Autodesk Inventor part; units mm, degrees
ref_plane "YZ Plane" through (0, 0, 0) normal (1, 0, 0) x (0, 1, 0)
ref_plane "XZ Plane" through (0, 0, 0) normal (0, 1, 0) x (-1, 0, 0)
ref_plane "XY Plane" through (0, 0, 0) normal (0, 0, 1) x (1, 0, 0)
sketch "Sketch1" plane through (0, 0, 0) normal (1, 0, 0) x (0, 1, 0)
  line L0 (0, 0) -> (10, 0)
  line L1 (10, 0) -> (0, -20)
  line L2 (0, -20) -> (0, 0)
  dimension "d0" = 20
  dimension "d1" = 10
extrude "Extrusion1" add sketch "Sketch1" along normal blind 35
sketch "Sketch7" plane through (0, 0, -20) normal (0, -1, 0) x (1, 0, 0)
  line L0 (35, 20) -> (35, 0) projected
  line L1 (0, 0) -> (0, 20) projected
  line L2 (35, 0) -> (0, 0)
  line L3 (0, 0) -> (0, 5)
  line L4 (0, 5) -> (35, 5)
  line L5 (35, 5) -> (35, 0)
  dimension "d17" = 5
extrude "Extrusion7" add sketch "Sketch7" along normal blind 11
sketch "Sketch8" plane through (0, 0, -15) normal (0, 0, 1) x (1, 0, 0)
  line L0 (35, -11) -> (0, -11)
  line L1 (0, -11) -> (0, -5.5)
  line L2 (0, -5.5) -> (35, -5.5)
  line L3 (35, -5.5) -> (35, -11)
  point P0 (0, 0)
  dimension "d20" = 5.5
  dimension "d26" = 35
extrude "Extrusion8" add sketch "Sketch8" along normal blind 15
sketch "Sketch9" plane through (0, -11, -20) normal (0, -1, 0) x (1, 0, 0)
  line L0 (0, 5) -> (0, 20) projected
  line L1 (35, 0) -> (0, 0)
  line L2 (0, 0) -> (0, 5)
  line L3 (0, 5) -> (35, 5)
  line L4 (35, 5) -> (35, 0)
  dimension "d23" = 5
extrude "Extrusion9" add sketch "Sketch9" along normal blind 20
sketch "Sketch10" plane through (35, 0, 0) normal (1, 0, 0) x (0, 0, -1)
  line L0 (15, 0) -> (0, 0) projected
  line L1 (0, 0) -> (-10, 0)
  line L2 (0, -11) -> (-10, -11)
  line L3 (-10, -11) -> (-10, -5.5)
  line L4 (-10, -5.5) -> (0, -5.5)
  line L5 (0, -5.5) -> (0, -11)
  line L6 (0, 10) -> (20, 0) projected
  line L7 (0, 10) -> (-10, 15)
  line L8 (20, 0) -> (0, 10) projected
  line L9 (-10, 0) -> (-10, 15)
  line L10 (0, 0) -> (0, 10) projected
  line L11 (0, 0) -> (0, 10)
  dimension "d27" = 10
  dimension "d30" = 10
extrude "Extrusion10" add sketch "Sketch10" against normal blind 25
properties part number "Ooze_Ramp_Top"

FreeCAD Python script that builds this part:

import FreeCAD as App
import Part
import Sketcher

V = App.Vector
Q = App.Units.Quantity


def add_polygon(sketch, points):
    """Adds a closed chain of lines whose ends are joined by coincident constraints."""
    first, n = sketch.GeometryCount, len(points)
    for a, b in zip(points, points[1:] + points[:1]):
        sketch.addGeometry(Part.LineSegment(App.Vector(*a, 0), App.Vector(*b, 0)), False)
    for i in range(n):
        sketch.addConstraint(Sketcher.Constraint("Coincident", first + i, 2, first + (i + 1) % n, 1))

doc = App.newDocument("Part")
params = doc.addObject("Spreadsheet::Sheet", "Params")
for row, (alias, value) in enumerate([
    ("sketch1_width", "10 mm"),
    ("sketch1_height", "20 mm"),
    ("pad1_length", "35 mm"),
    ("sketch2_height", "5 mm"),
    ("sketch2_width", "35 mm"),
    ("pad2_length", "11 mm"),
    ("sketch3_width", "35 mm"),
    ("sketch3_height", "5.5 mm"),
    ("pad3_length", "15 mm"),
    ("sketch4_height", "5 mm"),
    ("sketch4_width", "35 mm"),
    ("pad4_length", "20 mm"),
    ("sketch5_width", "10 mm"),
    ("sketch5_width2", "15 mm"),
    ("sketch5_width3", "5.5 mm"),
    ("pad5_length", "25 mm"),
], start=1):
    params.set(f"A{row}", alias)
    params.set(f"B{row}", "=" + value)
    params.setAlias(f"B{row}", alias)

body = doc.addObject("PartDesign::Body", "Body")

# Sketch on YZ plane
sketch1 = doc.addObject("Sketcher::SketchObject", "Sketch")
body.addObject(sketch1)
sketch1.AttachmentSupport = (doc.YZ_Plane, [""])
sketch1.MapMode = "FlatFace"
add_polygon(sketch1, [(10, 0), (0, 0), (0, -20)])  # lines 0-2
sketch1.addConstraint([
    Sketcher.Constraint("Horizontal", 0),
    Sketcher.Constraint("Vertical", 1),
    Sketcher.Constraint("Coincident", 0, 2, -1, 1),
    Sketcher.Constraint("DistanceX", 0, 2, 0, 1, Q("10 mm")),
    Sketcher.Constraint("DistanceY", 1, 2, 1, 1, Q("20 mm")),
])
sketch1.setExpression("Constraints[6]", "Params.sketch1_width")
sketch1.setExpression("Constraints[7]", "Params.sketch1_height")
pad1 = doc.addObject("PartDesign::Pad", "Pad")
body.addObject(pad1)
pad1.Profile = sketch1
pad1.setExpression("Length", "Params.pad1_length")

# Sketch on XZ plane
sketch2 = doc.addObject("Sketcher::SketchObject", "Sketch001")
body.addObject(sketch2)
sketch2.AttachmentSupport = (doc.XZ_Plane, [""])
sketch2.MapMode = "FlatFace"
add_polygon(sketch2, [(35, -20), (35, -15), (0, -15), (0, -20)])  # lines 0-3
sketch2.addConstraint([
    Sketcher.Constraint("Vertical", 0),
    Sketcher.Constraint("Horizontal", 1),
    Sketcher.Constraint("Vertical", 2),
    Sketcher.Constraint("Horizontal", 3),
    Sketcher.Constraint("PointOnObject", 1, 2, -2),
    Sketcher.Constraint("DistanceY", 0, 1, 0, 2, Q("5 mm")),
    Sketcher.Constraint("DistanceX", 1, 2, 1, 1, Q("35 mm")),
    Sketcher.Constraint("DistanceY", 0, 2, -1, 1, Q("15 mm")),
])
sketch2.setExpression("Constraints[9]", "Params.sketch2_height")
sketch2.setExpression("Constraints[10]", "Params.sketch2_width")
pad2 = doc.addObject("PartDesign::Pad", "Pad001")
body.addObject(pad2)
pad2.Profile = sketch2
pad2.setExpression("Length", "Params.pad2_length")

# Sketch on XY plane
sketch3 = doc.addObject("Sketcher::SketchObject", "Sketch002")
body.addObject(sketch3)
sketch3.AttachmentSupport = (doc.XY_Plane, [""])
sketch3.MapMode = "FlatFace"
sketch3.AttachmentOffset = App.Placement(V(0, 0, -15), App.Rotation())
add_polygon(sketch3, [(0, -11), (35, -11), (35, -6), (0, -6)])  # lines 0-3
sketch3.addConstraint([
    Sketcher.Constraint("Horizontal", 0),
    Sketcher.Constraint("Vertical", 1),
    Sketcher.Constraint("Horizontal", 2),
    Sketcher.Constraint("Vertical", 3),
    Sketcher.Constraint("PointOnObject", 2, 2, -2),
    Sketcher.Constraint("DistanceX", 0, 1, 0, 2, Q("35 mm")),
    Sketcher.Constraint("DistanceY", 1, 1, 1, 2, Q("5.5 mm")),
    Sketcher.Constraint("DistanceY", 1, 2, -1, 1, Q("5.5 mm")),
])
sketch3.setExpression("Constraints[9]", "Params.sketch3_width")
sketch3.setExpression("Constraints[10]", "Params.sketch3_height")
pad3 = doc.addObject("PartDesign::Pad", "Pad002")
body.addObject(pad3)
pad3.Profile = sketch3
pad3.setExpression("Length", "Params.pad3_length")

# Sketch on XZ plane
sketch4 = doc.addObject("Sketcher::SketchObject", "Sketch003")
body.addObject(sketch4)
sketch4.AttachmentSupport = (doc.XZ_Plane, [""])
sketch4.MapMode = "FlatFace"
sketch4.AttachmentOffset = App.Placement(V(0, 0, 11), App.Rotation())
add_polygon(sketch4, [(0, -20), (35, -20), (35, -15), (0, -15)])  # lines 0-3
sketch4.addConstraint([
    Sketcher.Constraint("Horizontal", 0),
    Sketcher.Constraint("Vertical", 1),
    Sketcher.Constraint("Horizontal", 2),
    Sketcher.Constraint("Vertical", 3),
    Sketcher.Constraint("PointOnObject", 2, 2, -2),
    Sketcher.Constraint("DistanceY", 1, 1, 1, 2, Q("5 mm")),
    Sketcher.Constraint("DistanceX", 0, 1, 0, 2, Q("35 mm")),
    Sketcher.Constraint("DistanceY", 0, 2, -1, 1, Q("20 mm")),
])
sketch4.setExpression("Constraints[9]", "Params.sketch4_height")
sketch4.setExpression("Constraints[10]", "Params.sketch4_width")
pad4 = doc.addObject("PartDesign::Pad", "Pad003")
body.addObject(pad4)
pad4.Profile = sketch4
pad4.setExpression("Length", "Params.pad4_length")

# Sketch on YZ plane
sketch5 = doc.addObject("Sketcher::SketchObject", "Sketch004")
body.addObject(sketch5)
sketch5.AttachmentSupport = (doc.YZ_Plane, [""])
sketch5.MapMode = "FlatFace"
sketch5.AttachmentOffset = App.Placement(V(0, 0, 35), App.Rotation())
add_polygon(sketch5, [(0, 10), (0, 0), (10, 0), (15, 10)])  # lines 0-3
add_polygon(sketch5, [(-11, 10), (-11, 0), (-6, 0), (-6, 10)])  # lines 4-7
sketch5.addConstraint([
    Sketcher.Constraint("Vertical", 0),
    Sketcher.Constraint("Horizontal", 1),
    Sketcher.Constraint("Horizontal", 3),
    Sketcher.Constraint("Vertical", 4),
    Sketcher.Constraint("Horizontal", 5),
    Sketcher.Constraint("Vertical", 6),
    Sketcher.Constraint("Horizontal", 7),
    Sketcher.Constraint("Coincident", 0, 2, -1, 1),
    Sketcher.Constraint("PointOnObject", 4, 2, -1),
    Sketcher.Constraint("Horizontal", 3, 2, 6, 2),
    Sketcher.Constraint("Equal", 1, 0),
    Sketcher.Constraint("DistanceX", 1, 1, 1, 2, Q("10 mm")),
    Sketcher.Constraint("DistanceX", 3, 2, 3, 1, Q("15 mm")),
    Sketcher.Constraint("DistanceX", 5, 1, 5, 2, Q("5.5 mm")),
    Sketcher.Constraint("DistanceX", 4, 2, -1, 1, Q("11 mm")),
])
sketch5.setExpression("Constraints[19]", "Params.sketch5_width")
sketch5.setExpression("Constraints[20]", "Params.sketch5_width2")
sketch5.setExpression("Constraints[21]", "Params.sketch5_width3")
pad5 = doc.addObject("PartDesign::Pad", "Pad004")
body.addObject(pad5)
pad5.Profile = sketch5
pad5.setExpression("Length", "Params.pad5_length")
pad5.Reversed = True

doc.recompute()
